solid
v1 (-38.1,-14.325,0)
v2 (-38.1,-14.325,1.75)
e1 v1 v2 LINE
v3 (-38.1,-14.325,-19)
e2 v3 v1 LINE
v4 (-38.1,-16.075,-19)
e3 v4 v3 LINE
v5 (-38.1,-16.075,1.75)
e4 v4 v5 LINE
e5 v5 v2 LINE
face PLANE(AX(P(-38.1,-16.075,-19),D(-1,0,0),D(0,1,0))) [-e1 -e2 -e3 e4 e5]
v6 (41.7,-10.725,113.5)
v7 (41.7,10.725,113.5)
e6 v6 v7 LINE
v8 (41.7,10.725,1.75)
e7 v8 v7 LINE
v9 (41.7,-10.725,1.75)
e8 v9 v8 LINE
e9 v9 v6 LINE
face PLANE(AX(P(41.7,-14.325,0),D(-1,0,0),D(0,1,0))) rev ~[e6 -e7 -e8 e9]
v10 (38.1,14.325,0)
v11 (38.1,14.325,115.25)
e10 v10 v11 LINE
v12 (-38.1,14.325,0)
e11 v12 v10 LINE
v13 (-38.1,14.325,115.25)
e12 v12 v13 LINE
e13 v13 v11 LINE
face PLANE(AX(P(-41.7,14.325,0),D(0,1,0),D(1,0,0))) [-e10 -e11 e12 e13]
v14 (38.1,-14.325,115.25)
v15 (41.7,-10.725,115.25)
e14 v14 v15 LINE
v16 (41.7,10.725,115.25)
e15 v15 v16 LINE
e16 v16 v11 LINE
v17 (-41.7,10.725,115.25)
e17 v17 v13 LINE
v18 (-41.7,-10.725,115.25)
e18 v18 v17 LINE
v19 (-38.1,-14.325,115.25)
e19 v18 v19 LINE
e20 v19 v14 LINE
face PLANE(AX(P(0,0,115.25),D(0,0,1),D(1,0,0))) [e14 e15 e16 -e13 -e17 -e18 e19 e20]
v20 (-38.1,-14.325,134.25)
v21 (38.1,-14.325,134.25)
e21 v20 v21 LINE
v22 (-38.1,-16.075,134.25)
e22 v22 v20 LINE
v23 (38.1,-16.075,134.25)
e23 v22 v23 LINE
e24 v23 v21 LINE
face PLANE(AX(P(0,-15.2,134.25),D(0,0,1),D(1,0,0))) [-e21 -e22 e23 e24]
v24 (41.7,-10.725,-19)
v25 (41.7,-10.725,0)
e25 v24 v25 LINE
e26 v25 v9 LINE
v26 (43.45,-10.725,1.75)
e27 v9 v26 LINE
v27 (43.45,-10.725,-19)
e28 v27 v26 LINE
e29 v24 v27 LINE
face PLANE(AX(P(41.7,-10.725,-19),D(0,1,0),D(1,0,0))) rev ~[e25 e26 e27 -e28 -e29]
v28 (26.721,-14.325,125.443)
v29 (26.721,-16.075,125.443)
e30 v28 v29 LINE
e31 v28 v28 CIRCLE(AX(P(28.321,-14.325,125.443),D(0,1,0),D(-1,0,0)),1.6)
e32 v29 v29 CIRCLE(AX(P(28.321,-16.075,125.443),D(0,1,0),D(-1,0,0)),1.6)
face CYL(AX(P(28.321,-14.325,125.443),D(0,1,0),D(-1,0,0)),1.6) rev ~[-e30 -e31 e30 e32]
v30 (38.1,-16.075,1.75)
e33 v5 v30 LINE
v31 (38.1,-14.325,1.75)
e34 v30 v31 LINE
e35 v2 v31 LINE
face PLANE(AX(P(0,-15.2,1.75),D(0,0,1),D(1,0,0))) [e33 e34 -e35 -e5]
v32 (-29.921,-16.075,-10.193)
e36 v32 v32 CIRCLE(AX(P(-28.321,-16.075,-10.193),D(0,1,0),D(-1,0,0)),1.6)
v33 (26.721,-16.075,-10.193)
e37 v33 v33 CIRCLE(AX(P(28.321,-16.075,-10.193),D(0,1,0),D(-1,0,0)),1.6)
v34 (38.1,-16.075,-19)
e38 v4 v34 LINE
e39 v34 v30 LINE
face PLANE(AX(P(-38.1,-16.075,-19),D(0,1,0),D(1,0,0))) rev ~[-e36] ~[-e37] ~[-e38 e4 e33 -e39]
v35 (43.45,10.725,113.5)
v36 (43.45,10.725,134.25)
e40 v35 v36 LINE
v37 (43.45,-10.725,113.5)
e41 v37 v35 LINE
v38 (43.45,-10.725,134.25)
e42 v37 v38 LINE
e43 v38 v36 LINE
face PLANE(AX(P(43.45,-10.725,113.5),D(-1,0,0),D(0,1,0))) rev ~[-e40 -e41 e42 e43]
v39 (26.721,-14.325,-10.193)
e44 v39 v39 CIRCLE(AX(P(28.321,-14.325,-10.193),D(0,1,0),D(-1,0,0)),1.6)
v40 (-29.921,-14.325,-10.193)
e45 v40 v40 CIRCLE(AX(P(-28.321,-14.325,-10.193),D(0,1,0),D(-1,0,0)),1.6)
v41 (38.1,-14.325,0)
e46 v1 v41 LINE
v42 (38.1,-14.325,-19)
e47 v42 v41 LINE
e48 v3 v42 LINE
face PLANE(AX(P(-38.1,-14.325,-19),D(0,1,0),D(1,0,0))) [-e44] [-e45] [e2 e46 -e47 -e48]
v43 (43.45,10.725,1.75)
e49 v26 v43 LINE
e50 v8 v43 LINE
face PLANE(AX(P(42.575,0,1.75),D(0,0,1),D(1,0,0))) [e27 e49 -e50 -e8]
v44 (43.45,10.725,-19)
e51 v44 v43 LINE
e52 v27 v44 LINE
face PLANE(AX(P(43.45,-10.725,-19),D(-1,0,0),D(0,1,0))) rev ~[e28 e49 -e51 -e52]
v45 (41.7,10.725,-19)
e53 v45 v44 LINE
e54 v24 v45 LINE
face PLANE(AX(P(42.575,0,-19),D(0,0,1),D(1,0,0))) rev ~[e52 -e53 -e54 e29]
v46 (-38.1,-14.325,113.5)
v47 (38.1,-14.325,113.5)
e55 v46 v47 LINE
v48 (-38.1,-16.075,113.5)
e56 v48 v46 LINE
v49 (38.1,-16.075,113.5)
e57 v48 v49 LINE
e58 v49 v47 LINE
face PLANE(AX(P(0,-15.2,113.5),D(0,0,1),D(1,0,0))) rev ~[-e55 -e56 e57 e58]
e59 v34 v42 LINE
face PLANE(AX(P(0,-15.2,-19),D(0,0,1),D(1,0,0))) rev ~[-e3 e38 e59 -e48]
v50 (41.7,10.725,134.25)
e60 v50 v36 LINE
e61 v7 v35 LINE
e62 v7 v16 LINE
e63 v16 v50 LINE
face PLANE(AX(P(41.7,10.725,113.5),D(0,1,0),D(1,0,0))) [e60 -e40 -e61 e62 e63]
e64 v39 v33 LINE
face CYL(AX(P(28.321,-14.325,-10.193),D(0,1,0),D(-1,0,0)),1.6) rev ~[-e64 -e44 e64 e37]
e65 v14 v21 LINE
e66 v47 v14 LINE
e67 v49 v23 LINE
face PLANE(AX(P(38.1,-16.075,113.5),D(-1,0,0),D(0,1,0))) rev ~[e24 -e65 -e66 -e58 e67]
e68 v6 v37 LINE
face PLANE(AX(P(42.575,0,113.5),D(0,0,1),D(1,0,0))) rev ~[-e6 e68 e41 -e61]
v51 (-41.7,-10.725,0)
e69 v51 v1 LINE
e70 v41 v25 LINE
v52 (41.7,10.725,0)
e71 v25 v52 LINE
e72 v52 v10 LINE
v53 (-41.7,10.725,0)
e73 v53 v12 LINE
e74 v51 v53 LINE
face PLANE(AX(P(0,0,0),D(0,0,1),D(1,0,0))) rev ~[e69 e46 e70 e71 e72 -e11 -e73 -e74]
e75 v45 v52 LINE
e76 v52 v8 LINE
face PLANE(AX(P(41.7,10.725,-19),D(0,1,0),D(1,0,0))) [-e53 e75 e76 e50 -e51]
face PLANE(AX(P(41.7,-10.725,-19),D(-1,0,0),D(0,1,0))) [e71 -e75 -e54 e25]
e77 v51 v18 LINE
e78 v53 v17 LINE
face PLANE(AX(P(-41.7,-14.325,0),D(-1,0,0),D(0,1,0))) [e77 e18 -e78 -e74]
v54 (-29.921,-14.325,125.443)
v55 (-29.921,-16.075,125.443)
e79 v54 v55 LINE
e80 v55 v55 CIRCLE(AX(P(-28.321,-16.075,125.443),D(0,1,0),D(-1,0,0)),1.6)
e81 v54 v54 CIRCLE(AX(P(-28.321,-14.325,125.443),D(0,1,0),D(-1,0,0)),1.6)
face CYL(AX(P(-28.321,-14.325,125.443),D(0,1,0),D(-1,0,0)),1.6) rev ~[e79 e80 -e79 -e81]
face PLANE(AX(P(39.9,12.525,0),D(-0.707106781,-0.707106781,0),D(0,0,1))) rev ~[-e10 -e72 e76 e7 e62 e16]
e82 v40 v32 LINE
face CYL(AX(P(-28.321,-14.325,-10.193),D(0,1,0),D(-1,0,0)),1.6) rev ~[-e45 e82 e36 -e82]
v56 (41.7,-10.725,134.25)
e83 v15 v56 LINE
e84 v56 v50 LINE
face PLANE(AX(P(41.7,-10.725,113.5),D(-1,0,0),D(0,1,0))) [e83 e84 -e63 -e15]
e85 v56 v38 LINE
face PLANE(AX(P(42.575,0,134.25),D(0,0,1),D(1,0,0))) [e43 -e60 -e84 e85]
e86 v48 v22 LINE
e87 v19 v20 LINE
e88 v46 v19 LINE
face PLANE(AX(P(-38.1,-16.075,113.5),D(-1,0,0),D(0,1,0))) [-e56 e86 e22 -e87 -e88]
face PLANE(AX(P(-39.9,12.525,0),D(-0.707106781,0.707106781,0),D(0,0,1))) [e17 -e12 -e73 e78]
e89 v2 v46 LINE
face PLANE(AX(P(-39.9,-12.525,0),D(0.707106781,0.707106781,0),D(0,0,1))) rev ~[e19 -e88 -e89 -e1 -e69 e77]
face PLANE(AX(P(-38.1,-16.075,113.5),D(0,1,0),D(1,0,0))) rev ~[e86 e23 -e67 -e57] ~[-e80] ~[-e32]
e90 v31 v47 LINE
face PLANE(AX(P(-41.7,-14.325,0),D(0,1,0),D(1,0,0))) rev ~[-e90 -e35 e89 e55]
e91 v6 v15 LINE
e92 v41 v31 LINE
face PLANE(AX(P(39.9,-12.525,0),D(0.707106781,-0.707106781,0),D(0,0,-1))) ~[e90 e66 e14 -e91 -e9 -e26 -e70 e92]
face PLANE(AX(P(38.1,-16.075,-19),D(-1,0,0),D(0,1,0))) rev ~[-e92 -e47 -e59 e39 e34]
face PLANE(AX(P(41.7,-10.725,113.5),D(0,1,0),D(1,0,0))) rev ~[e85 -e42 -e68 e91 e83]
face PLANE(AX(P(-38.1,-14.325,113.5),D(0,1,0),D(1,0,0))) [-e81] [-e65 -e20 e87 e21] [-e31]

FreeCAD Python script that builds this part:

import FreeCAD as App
import Part
import Sketcher
Q = App.Units.Quantity


def edges_at(feature, points):
    """Names of the edges that pass closest to the given points."""
    edges = feature.Shape.Edges
    near = lambda p: min(range(len(edges)), key=lambda i: edges[i].distToShape(Part.Vertex(*p))[0])
    return sorted({f"Edge{near(p) + 1}" for p in points})

doc = App.newDocument("Part")
body = doc.addObject("PartDesign::Body", "Body")

# Sketch on XY plane
sketch1 = doc.addObject("Sketcher::SketchObject", "Sketch")
body.addObject(sketch1)
sketch1.AttachmentSupport = (doc.XY_Plane, [""])
sketch1.MapMode = "FlatFace"
sketch1.addGeometry(Part.LineSegment(App.Vector(-42, 14, 0), App.Vector(-42, -14, 0)), False)
sketch1.addGeometry(Part.LineSegment(App.Vector(-42, -14, 0), App.Vector(42, -14, 0)), False)
sketch1.addGeometry(Part.LineSegment(App.Vector(42, -14, 0), App.Vector(42, 14, 0)), False)
sketch1.addGeometry(Part.LineSegment(App.Vector(42, 14, 0), App.Vector(-42, 14, 0)), False)
sketch1.addConstraint(Sketcher.Constraint("Coincident", 0, 2, 1, 1))
sketch1.addConstraint(Sketcher.Constraint("Coincident", 1, 2, 2, 1))
sketch1.addConstraint(Sketcher.Constraint("Coincident", 2, 2, 3, 1))
sketch1.addConstraint(Sketcher.Constraint("Coincident", 3, 2, 0, 1))
sketch1.addConstraint(Sketcher.Constraint("Vertical", 0))
sketch1.addConstraint(Sketcher.Constraint("Horizontal", 1))
sketch1.addConstraint(Sketcher.Constraint("Vertical", 2))
sketch1.addConstraint(Sketcher.Constraint("Horizontal", 3))
sketch1.addConstraint(Sketcher.Constraint("Symmetric", 0, 2, 2, 2, -1, 1))
sketch1.addConstraint(Sketcher.Constraint("DistanceX", 1, 1, 1, 2, Q("83.4 mm")))
sketch1.addConstraint(Sketcher.Constraint("DistanceY", 0, 2, 0, 1, Q("28.65 mm")))
pad1 = doc.addObject("PartDesign::Pad", "Pad")
body.addObject(pad1)
pad1.Profile = sketch1
pad1.Length = 115.25
doc.recompute()

chamfer = doc.addObject("PartDesign::Chamfer", "Chamfer")
body.addObject(chamfer)
chamfer.Base = (pad1, edges_at(pad1, [
    (41.7, -14.325, 57.625),
    (-41.7, -14.325, 57.625),
    (-41.7, 14.325, 57.625),
    (41.7, 14.325, 57.625),
]))
chamfer.Size = 3.6

# Sketch on XY plane
sketch2 = doc.addObject("Sketcher::SketchObject", "Sketch001")
body.addObject(sketch2)
sketch2.AttachmentSupport = (doc.XY_Plane, [""])
sketch2.MapMode = "FlatFace"
sketch2.AttachmentOffset = App.Placement(App.Vector(0, 0, 115.25), App.Rotation())
sketch2.addGeometry(Part.LineSegment(App.Vector(41.7, 10.7, 0), App.Vector(41.7, -10.7, 0)), False)
sketch2.addGeometry(Part.LineSegment(App.Vector(41.7, -10.7, 0), App.Vector(43.5, -10.7, 0)), False)
sketch2.addGeometry(Part.LineSegment(App.Vector(43.5, -10.7, 0), App.Vector(43.5, 10.7, 0)), False)
sketch2.addGeometry(Part.LineSegment(App.Vector(43.5, 10.7, 0), App.Vector(41.7, 10.7, 0)), False)
sketch2.addGeometry(Part.LineSegment(App.Vector(-38.1, -14.3, 0), App.Vector(-38.1, -16.1, 0)), False)
sketch2.addGeometry(Part.LineSegment(App.Vector(-38.1, -16.1, 0), App.Vector(38.1, -16.1, 0)), False)
sketch2.addGeometry(Part.LineSegment(App.Vector(38.1, -16.1, 0), App.Vector(38.1, -14.3, 0)), False)
sketch2.addGeometry(Part.LineSegment(App.Vector(38.1, -14.3, 0), App.Vector(-38.1, -14.3, 0)), False)
sketch2.addConstraint(Sketcher.Constraint("Coincident", 0, 2, 1, 1))
sketch2.addConstraint(Sketcher.Constraint("Coincident", 1, 2, 2, 1))
sketch2.addConstraint(Sketcher.Constraint("Coincident", 2, 2, 3, 1))
sketch2.addConstraint(Sketcher.Constraint("Coincident", 3, 2, 0, 1))
sketch2.addConstraint(Sketcher.Constraint("Coincident", 4, 2, 5, 1))
sketch2.addConstraint(Sketcher.Constraint("Coincident", 5, 2, 6, 1))
sketch2.addConstraint(Sketcher.Constraint("Coincident", 6, 2, 7, 1))
sketch2.addConstraint(Sketcher.Constraint("Coincident", 7, 2, 4, 1))
sketch2.addConstraint(Sketcher.Constraint("Vertical", 0))
sketch2.addConstraint(Sketcher.Constraint("Horizontal", 1))
sketch2.addConstraint(Sketcher.Constraint("Vertical", 2))
sketch2.addConstraint(Sketcher.Constraint("Horizontal", 3))
sketch2.addConstraint(Sketcher.Constraint("Vertical", 4))
sketch2.addConstraint(Sketcher.Constraint("Horizontal", 5))
sketch2.addConstraint(Sketcher.Constraint("Vertical", 6))
sketch2.addConstraint(Sketcher.Constraint("Horizontal", 7))
sketch2.addConstraint(Sketcher.Constraint("Equal", 3, 4))
sketch2.addConstraint(Sketcher.Constraint("DistanceX", 5, 1, 5, 2, Q("76.2 mm")))
sketch2.addConstraint(Sketcher.Constraint("DistanceX", 1, 1, 1, 2, Q("1.75 mm")))
sketch2.addConstraint(Sketcher.Constraint("DistanceY", 0, 2, 0, 1, Q("21.45 mm")))
sketch2.addConstraint(Sketcher.Constraint("DistanceX", -1, 1, 0, 2, Q("41.7 mm")))
sketch2.addConstraint(Sketcher.Constraint("DistanceX", 4, 2, -1, 1, Q("38.1 mm")))
sketch2.addConstraint(Sketcher.Constraint("DistanceY", 4, 2, 3, 2, Q("26.8 mm")))
sketch2.addConstraint(Sketcher.Constraint("DistanceY", 0, 2, -1, 1, Q("10.725 mm")))
pad2 = doc.addObject("PartDesign::Pad", "Pad001")
body.addObject(pad2)
pad2.Profile = sketch2
pad2.Type = "TwoLengths"
pad2.Length = 19
pad2.Length2 = 1.75

# Sketch on XY plane
sketch3 = doc.addObject("Sketcher::SketchObject", "Sketch002")
body.addObject(sketch3)
sketch3.AttachmentSupport = (doc.XY_Plane, [""])
sketch3.MapMode = "FlatFace"
sketch3.addGeometry(Part.LineSegment(App.Vector(41.7, 10.7, 0), App.Vector(41.7, -10.7, 0)), False)
sketch3.addGeometry(Part.LineSegment(App.Vector(41.7, -10.7, 0), App.Vector(43.5, -10.7, 0)), False)
sketch3.addGeometry(Part.LineSegment(App.Vector(43.5, -10.7, 0), App.Vector(43.5, 10.7, 0)), False)
sketch3.addGeometry(Part.LineSegment(App.Vector(43.5, 10.7, 0), App.Vector(41.7, 10.7, 0)), False)
sketch3.addGeometry(Part.LineSegment(App.Vector(-38.1, -14.3, 0), App.Vector(-38.1, -16.1, 0)), False)
sketch3.addGeometry(Part.LineSegment(App.Vector(-38.1, -16.1, 0), App.Vector(38.1, -16.1, 0)), False)
sketch3.addGeometry(Part.LineSegment(App.Vector(38.1, -16.1, 0), App.Vector(38.1, -14.3, 0)), False)
sketch3.addGeometry(Part.LineSegment(App.Vector(38.1, -14.3, 0), App.Vector(-38.1, -14.3, 0)), False)
sketch3.addConstraint(Sketcher.Constraint("Coincident", 0, 2, 1, 1))
sketch3.addConstraint(Sketcher.Constraint("Coincident", 1, 2, 2, 1))
sketch3.addConstraint(Sketcher.Constraint("Coincident", 2, 2, 3, 1))
sketch3.addConstraint(Sketcher.Constraint("Coincident", 3, 2, 0, 1))
sketch3.addConstraint(Sketcher.Constraint("Coincident", 4, 2, 5, 1))
sketch3.addConstraint(Sketcher.Constraint("Coincident", 5, 2, 6, 1))
sketch3.addConstraint(Sketcher.Constraint("Coincident", 6, 2, 7, 1))
sketch3.addConstraint(Sketcher.Constraint("Coincident", 7, 2, 4, 1))
sketch3.addConstraint(Sketcher.Constraint("Vertical", 0))
sketch3.addConstraint(Sketcher.Constraint("Horizontal", 1))
sketch3.addConstraint(Sketcher.Constraint("Vertical", 2))
sketch3.addConstraint(Sketcher.Constraint("Horizontal", 3))
sketch3.addConstraint(Sketcher.Constraint("Vertical", 4))
sketch3.addConstraint(Sketcher.Constraint("Horizontal", 5))
sketch3.addConstraint(Sketcher.Constraint("Vertical", 6))
sketch3.addConstraint(Sketcher.Constraint("Horizontal", 7))
sketch3.addConstraint(Sketcher.Constraint("Equal", 3, 4))
sketch3.addConstraint(Sketcher.Constraint("DistanceX", 5, 1, 5, 2, Q("76.2 mm")))
sketch3.addConstraint(Sketcher.Constraint("DistanceX", 1, 1, 1, 2, Q("1.75 mm")))
sketch3.addConstraint(Sketcher.Constraint("DistanceY", 0, 2, 0, 1, Q("21.45 mm")))
sketch3.addConstraint(Sketcher.Constraint("DistanceX", -1, 1, 0, 2, Q("41.7 mm")))
sketch3.addConstraint(Sketcher.Constraint("DistanceX", 4, 2, -1, 1, Q("38.1 mm")))
sketch3.addConstraint(Sketcher.Constraint("DistanceY", 4, 2, 3, 2, Q("26.8 mm")))
sketch3.addConstraint(Sketcher.Constraint("DistanceY", 0, 2, -1, 1, Q("10.725 mm")))
pad3 = doc.addObject("PartDesign::Pad", "Pad002")
body.addObject(pad3)
pad3.Profile = sketch3
pad3.Type = "TwoLengths"
pad3.Length = 1.75
pad3.Length2 = 19

# Sketch on XZ plane
sketch4 = doc.addObject("Sketcher::SketchObject", "Sketch003")
body.addObject(sketch4)
sketch4.AttachmentSupport = (doc.XZ_Plane, [""])
sketch4.MapMode = "FlatFace"
sketch4.AttachmentOffset = App.Placement(App.Vector(0, 0, 14.325), App.Rotation())
sketch4.addGeometry(Part.Circle(App.Vector(-28.3, -10.2, 0), App.Vector(0, 0, 1), 1.6), False)
sketch4.addGeometry(Part.Circle(App.Vector(28.3, -10.2, 0), App.Vector(0, 0, 1), 1.6), False)
sketch4.addGeometry(Part.Circle(App.Vector(28.3, 125.4, 0), App.Vector(0, 0, 1), 1.6), False)
sketch4.addGeometry(Part.Circle(App.Vector(-28.3, 125.4, 0), App.Vector(0, 0, 1), 1.6), False)
sketch4.addConstraint(Sketcher.Constraint("Equal", 0, 1))
sketch4.addConstraint(Sketcher.Constraint("Equal", 1, 2))
sketch4.addConstraint(Sketcher.Constraint("Equal", 2, 3))
sketch4.addConstraint(Sketcher.Constraint("Symmetric", 0, 3, 1, 3, -2))
sketch4.addConstraint(Sketcher.Constraint("Symmetric", 2, 3, 3, 3, -2))
sketch4.addConstraint(Sketcher.Constraint("Vertical", 1, 3, 2, 3))
sketch4.addConstraint(Sketcher.Constraint("Diameter", 0, Q("3.2 mm")))
sketch4.addConstraint(Sketcher.Constraint("DistanceX", 0, 3, -1, 1, Q("28.321 mm")))
sketch4.addConstraint(Sketcher.Constraint("DistanceY", 0, 3, -1, 1, Q("10.193 mm")))
sketch4.addConstraint(Sketcher.Constraint("DistanceY", -1, 1, 2, 3, Q("125.443 mm")))
pocket1 = doc.addObject("PartDesign::Pocket", "Pocket")
body.addObject(pocket1)
pocket1.Profile = sketch4
pocket1.Type = "ThroughAll"
pocket1.Reversed = True

doc.recompute()
